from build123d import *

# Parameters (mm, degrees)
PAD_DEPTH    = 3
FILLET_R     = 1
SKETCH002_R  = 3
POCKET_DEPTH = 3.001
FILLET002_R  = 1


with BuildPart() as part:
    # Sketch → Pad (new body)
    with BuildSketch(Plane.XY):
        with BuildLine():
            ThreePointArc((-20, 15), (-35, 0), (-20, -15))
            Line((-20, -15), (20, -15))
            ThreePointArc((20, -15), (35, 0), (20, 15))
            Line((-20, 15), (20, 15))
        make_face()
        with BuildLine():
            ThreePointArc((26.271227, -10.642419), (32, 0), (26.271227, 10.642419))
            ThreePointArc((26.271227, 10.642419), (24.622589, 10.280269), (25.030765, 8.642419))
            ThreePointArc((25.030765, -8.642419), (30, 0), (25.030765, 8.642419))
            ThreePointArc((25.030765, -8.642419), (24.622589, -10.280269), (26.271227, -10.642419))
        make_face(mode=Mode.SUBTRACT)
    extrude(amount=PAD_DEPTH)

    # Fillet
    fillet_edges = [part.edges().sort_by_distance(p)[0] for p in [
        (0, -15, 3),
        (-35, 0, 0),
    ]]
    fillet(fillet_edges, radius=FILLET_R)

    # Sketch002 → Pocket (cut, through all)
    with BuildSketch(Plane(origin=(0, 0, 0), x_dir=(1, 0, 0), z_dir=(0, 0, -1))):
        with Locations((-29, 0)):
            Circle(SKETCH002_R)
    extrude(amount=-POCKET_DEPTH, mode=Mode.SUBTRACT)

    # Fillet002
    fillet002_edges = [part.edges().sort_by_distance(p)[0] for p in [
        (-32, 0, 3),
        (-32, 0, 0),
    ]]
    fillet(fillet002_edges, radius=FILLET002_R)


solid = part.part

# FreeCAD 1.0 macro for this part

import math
import FreeCAD as App
import Part
import Sketcher

V = App.Vector
Q = App.Units.Quantity


def edges_at(feature, points):
    """Names of the edges that pass closest to the given points."""
    edges = feature.Shape.Edges
    near = lambda p: min(range(len(edges)), key=lambda i: edges[i].distToShape(Part.Vertex(*p))[0])
    return sorted({f"Edge{near(p) + 1}" for p in points})

doc = App.newDocument("Part")
body = doc.addObject("PartDesign::Body", "Body")

# Sketch on XY plane
sketch1 = body.newObject("Sketcher::SketchObject", "Sketch")
sketch1.AttachmentSupport = (doc.getObject("XY_Plane"), [""])
sketch1.MapMode = "FlatFace"
sketch1.addGeometry([
    Part.ArcOfCircle(Part.Circle(V(-20, 0, 0), V(0, 0, 1), 15), math.radians(90), math.radians(270)),  # 0
    Part.LineSegment(V(-20, -15, 0), V(20, -15, 0)),  # 1
    Part.ArcOfCircle(Part.Circle(V(20, 0, 0), V(0, 0, 1), 15), math.radians(-90), math.radians(90)),  # 2
    Part.LineSegment(V(20, 15, 0), V(-20, 15, 0)),  # 3
    Part.ArcOfCircle(Part.Circle(V(19.3, 0, 0), V(0, 0, 1), 12.7), math.radians(-57), math.radians(57)),  # 4
    Part.ArcOfCircle(Part.Circle(V(25.6, -9.7, 0), V(0, 0, 1), 1.2), math.radians(120), math.radians(303)),  # 5
    Part.ArcOfCircle(Part.Circle(V(20, 0, 0), V(0, 0, 1), 10), math.radians(-60), math.radians(60)),  # 6
    Part.ArcOfCircle(Part.Circle(V(25.6, 9.7, 0), V(0, 0, 1), 1.2), math.radians(57), math.radians(240)),  # 7
], False)
sketch1.addConstraint([
    Sketcher.Constraint("Tangent", 0, 2, 1, 1),
    Sketcher.Constraint("Tangent", 1, 2, 2, 1),
    Sketcher.Constraint("Tangent", 2, 2, 3, 1),
    Sketcher.Constraint("Tangent", 3, 2, 0, 1),
    Sketcher.Constraint("Tangent", 4, 1, 5, 2),
    Sketcher.Constraint("Tangent", 5, 1, 6, 1),
    Sketcher.Constraint("Tangent", 6, 2, 7, 2),
    Sketcher.Constraint("Tangent", 7, 1, 4, 2),
    Sketcher.Constraint("Horizontal", 1),
    Sketcher.Constraint("Horizontal", 3),
    Sketcher.Constraint("Coincident", 6, 3, 2, 3),
    Sketcher.Constraint("Equal", 5, 7),
    Sketcher.Constraint("Symmetric", 0, 3, 2, 3, -1, 1),
    Sketcher.Constraint("PointOnObject", 4, 3, -1),
    Sketcher.Constraint("Radius", 0, Q("15 mm")),
    Sketcher.Constraint("Radius", 6, Q("10 mm")),
    Sketcher.Constraint("DistanceX", 1, 1, 1, 2, Q("40 mm")),
    Sketcher.Constraint("DistanceY", 4, 1, 5, 1, Q("2 mm")),
    Sketcher.Constraint("Radius", 4, Q("12.749669 mm")),
    Sketcher.Constraint("Radius", 5, Q("1.177189 mm")),
])
pad1 = body.newObject("PartDesign::Pad", "Pad")
pad1.Profile = sketch1
pad1.Length = 3
doc.recompute()

fillet = body.newObject("PartDesign::Fillet", "Fillet")
fillet.Base = (pad1, edges_at(pad1, [(0, -15, 3), (-35, 0, 0)]))
fillet.Radius = 1

# Sketch on XY plane
sketch2 = body.newObject("Sketcher::SketchObject", "Sketch001")
sketch2.AttachmentSupport = (doc.getObject("XY_Plane"), [""])
sketch2.MapMode = "FlatFace"
sketch2.addGeometry(Part.Circle(V(-29, 0, 0), V(0, 0, 1), 3), False)
sketch2.addConstraint([
    Sketcher.Constraint("PointOnObject", 0, 3, -1),
    Sketcher.Constraint("Diameter", 0, Q("6 mm")),
    Sketcher.Constraint("DistanceX", 0, 3, -1, 1, Q("29 mm")),
])
pocket1 = body.newObject("PartDesign::Pocket", "Pocket")
pocket1.Profile = sketch2
pocket1.Type = "ThroughAll"
pocket1.Reversed = True
doc.recompute()

fillet2 = body.newObject("PartDesign::Fillet", "Fillet001")
fillet2.Base = (pocket1, edges_at(pocket1, [(-32, 0, 3), (-32, 0, 0)]))
fillet2.Radius = 1

doc.recompute()
